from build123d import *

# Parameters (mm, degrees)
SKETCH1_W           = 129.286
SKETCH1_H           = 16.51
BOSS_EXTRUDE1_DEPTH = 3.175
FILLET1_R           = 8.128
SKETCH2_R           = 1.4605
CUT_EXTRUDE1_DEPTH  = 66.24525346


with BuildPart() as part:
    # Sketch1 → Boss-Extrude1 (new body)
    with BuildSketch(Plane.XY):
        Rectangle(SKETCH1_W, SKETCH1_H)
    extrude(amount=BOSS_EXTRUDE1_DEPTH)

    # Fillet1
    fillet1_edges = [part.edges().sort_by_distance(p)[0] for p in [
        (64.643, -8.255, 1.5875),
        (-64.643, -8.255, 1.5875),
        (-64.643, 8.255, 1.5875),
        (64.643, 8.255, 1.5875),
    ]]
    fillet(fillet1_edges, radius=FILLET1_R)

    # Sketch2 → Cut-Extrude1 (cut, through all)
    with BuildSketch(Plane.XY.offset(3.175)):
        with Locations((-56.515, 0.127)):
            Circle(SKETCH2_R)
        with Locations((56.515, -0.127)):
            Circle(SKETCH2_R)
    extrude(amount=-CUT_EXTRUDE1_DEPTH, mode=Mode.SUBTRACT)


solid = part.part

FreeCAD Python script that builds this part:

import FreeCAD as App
import Part
import Sketcher
Q = App.Units.Quantity


def edges_at(feature, points):
    """Names of the edges that pass closest to the given points."""
    edges = feature.Shape.Edges
    near = lambda p: min(range(len(edges)), key=lambda i: edges[i].distToShape(Part.Vertex(*p))[0])
    return sorted({f"Edge{near(p) + 1}" for p in points})


def add_polygon(sketch, points):
    """Adds a closed chain of lines whose ends are joined by coincident constraints."""
    first, n = sketch.GeometryCount, len(points)
    for a, b in zip(points, points[1:] + points[:1]):
        sketch.addGeometry(Part.LineSegment(App.Vector(*a, 0), App.Vector(*b, 0)), False)
    for i in range(n):
        sketch.addConstraint(Sketcher.Constraint("Coincident", first + i, 2, first + (i + 1) % n, 1))

doc = App.newDocument("Part")
params = doc.addObject("Spreadsheet::Sheet", "Params")
for row, (alias, value) in enumerate([
    ("sketch1_width", "5.09 in"),
    ("sketch1_height", "0.65 in"),
    ("pad1_length", "0.125 in"),
    ("fillet_radius", "0.32 in"),
    ("sketch2_diameter", "0.115 in"),
], start=1):
    params.set(f"A{row}", alias)
    params.set(f"B{row}", "=" + value)
    params.setAlias(f"B{row}", alias)

body = doc.addObject("PartDesign::Body", "Body")

# Sketch on XY plane
sketch1 = doc.addObject("Sketcher::SketchObject", "Sketch")
body.addObject(sketch1)
sketch1.AttachmentSupport = (doc.XY_Plane, [""])
sketch1.MapMode = "FlatFace"
add_polygon(sketch1, [(-64.643, 8.255), (-64.643, -8.255), (64.643, -8.255), (64.643, 8.255)])  # lines 0-3
sketch1.addConstraint([
    Sketcher.Constraint("Vertical", 0),
    Sketcher.Constraint("Horizontal", 1),
    Sketcher.Constraint("Vertical", 2),
    Sketcher.Constraint("Horizontal", 3),
    Sketcher.Constraint("Symmetric", 0, 2, 2, 2, -1, 1),
    Sketcher.Constraint("DistanceX", 1, 1, 1, 2, Q("5.09 in")),
    Sketcher.Constraint("DistanceY", 0, 2, 0, 1, Q("0.65 in")),
])
sketch1.setExpression("Constraints[9]", "Params.sketch1_width")
sketch1.setExpression("Constraints[10]", "Params.sketch1_height")
pad1 = doc.addObject("PartDesign::Pad", "Pad")
body.addObject(pad1)
pad1.Profile = sketch1
pad1.setExpression("Length", "Params.pad1_length")
doc.recompute()

fillet = doc.addObject("PartDesign::Fillet", "Fillet")
body.addObject(fillet)
fillet.Base = (pad1, edges_at(pad1, [
    (64.643, -8.255, 1.587),
    (-64.643, -8.255, 1.587),
    (-64.643, 8.255, 1.587),
    (64.643, 8.255, 1.587),
]))
fillet.setExpression("Radius", "Params.fillet_radius")

# Sketch on XY plane
sketch2 = doc.addObject("Sketcher::SketchObject", "Sketch001")
body.addObject(sketch2)
sketch2.AttachmentSupport = (doc.XY_Plane, [""])
sketch2.MapMode = "FlatFace"
sketch2.AttachmentOffset = App.Placement(App.Vector(0, 0, 0.125 * 25.4), App.Rotation())
sketch2.addGeometry([
    Part.Circle(App.Vector(-56.515, 0.127, 0), App.Vector(0, 0, 1), 1.4605),
    Part.Circle(App.Vector(56.515, -0.127, 0), App.Vector(0, 0, 1), 1.4605),
], False)
sketch2.addConstraint([
    Sketcher.Constraint("Equal", 0, 1),
    Sketcher.Constraint("Symmetric", 0, 3, 1, 3, -1, 1),
    Sketcher.Constraint("Diameter", 0, Q("0.115 in")),
    Sketcher.Constraint("DistanceX", 0, 3, 1, 3, Q("4.45 in")),
    Sketcher.Constraint("DistanceY", 1, 3, 0, 3, Q("0.01 in")),
])
sketch2.setExpression("Constraints[2]", "Params.sketch2_diameter")
pocket1 = doc.addObject("PartDesign::Pocket", "Pocket")
body.addObject(pocket1)
pocket1.Profile = sketch2
pocket1.Type = "ThroughAll"

doc.recompute()
